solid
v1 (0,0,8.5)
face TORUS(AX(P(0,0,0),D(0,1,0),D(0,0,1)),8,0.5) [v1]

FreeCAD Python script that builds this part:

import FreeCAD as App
import Part
import Sketcher
from FreeCAD import Vector
Q = App.Units.Quantity

doc = App.newDocument("Part")
body = doc.addObject("PartDesign::Body", "Body")

sketch1 = body.newObject("Sketcher::SketchObject", "Sketch")
sketch1.AttachmentSupport = (doc.getObject("YZ_Plane"), [""])
sketch1.MapMode = "FlatFace"
sketch1.addGeometry(Part.Circle(Vector(0, 8, 0), Vector(0, 0, 1), 0.5), False)
sketch1.addConstraint([
    Sketcher.Constraint("PointOnObject", 0, 3, -2),
    Sketcher.Constraint("Diameter", 0, Q("1 mm")),
    Sketcher.Constraint("DistanceY", -1, 1, 0, 3, Q("8 mm")),
])
revolution = body.newObject("PartDesign::Revolution", "Revolution")
revolution.Profile = sketch1
revolution.ReferenceAxis = (sketch1, ["H_Axis"])
revolution.Angle = 360

doc.recompute()
